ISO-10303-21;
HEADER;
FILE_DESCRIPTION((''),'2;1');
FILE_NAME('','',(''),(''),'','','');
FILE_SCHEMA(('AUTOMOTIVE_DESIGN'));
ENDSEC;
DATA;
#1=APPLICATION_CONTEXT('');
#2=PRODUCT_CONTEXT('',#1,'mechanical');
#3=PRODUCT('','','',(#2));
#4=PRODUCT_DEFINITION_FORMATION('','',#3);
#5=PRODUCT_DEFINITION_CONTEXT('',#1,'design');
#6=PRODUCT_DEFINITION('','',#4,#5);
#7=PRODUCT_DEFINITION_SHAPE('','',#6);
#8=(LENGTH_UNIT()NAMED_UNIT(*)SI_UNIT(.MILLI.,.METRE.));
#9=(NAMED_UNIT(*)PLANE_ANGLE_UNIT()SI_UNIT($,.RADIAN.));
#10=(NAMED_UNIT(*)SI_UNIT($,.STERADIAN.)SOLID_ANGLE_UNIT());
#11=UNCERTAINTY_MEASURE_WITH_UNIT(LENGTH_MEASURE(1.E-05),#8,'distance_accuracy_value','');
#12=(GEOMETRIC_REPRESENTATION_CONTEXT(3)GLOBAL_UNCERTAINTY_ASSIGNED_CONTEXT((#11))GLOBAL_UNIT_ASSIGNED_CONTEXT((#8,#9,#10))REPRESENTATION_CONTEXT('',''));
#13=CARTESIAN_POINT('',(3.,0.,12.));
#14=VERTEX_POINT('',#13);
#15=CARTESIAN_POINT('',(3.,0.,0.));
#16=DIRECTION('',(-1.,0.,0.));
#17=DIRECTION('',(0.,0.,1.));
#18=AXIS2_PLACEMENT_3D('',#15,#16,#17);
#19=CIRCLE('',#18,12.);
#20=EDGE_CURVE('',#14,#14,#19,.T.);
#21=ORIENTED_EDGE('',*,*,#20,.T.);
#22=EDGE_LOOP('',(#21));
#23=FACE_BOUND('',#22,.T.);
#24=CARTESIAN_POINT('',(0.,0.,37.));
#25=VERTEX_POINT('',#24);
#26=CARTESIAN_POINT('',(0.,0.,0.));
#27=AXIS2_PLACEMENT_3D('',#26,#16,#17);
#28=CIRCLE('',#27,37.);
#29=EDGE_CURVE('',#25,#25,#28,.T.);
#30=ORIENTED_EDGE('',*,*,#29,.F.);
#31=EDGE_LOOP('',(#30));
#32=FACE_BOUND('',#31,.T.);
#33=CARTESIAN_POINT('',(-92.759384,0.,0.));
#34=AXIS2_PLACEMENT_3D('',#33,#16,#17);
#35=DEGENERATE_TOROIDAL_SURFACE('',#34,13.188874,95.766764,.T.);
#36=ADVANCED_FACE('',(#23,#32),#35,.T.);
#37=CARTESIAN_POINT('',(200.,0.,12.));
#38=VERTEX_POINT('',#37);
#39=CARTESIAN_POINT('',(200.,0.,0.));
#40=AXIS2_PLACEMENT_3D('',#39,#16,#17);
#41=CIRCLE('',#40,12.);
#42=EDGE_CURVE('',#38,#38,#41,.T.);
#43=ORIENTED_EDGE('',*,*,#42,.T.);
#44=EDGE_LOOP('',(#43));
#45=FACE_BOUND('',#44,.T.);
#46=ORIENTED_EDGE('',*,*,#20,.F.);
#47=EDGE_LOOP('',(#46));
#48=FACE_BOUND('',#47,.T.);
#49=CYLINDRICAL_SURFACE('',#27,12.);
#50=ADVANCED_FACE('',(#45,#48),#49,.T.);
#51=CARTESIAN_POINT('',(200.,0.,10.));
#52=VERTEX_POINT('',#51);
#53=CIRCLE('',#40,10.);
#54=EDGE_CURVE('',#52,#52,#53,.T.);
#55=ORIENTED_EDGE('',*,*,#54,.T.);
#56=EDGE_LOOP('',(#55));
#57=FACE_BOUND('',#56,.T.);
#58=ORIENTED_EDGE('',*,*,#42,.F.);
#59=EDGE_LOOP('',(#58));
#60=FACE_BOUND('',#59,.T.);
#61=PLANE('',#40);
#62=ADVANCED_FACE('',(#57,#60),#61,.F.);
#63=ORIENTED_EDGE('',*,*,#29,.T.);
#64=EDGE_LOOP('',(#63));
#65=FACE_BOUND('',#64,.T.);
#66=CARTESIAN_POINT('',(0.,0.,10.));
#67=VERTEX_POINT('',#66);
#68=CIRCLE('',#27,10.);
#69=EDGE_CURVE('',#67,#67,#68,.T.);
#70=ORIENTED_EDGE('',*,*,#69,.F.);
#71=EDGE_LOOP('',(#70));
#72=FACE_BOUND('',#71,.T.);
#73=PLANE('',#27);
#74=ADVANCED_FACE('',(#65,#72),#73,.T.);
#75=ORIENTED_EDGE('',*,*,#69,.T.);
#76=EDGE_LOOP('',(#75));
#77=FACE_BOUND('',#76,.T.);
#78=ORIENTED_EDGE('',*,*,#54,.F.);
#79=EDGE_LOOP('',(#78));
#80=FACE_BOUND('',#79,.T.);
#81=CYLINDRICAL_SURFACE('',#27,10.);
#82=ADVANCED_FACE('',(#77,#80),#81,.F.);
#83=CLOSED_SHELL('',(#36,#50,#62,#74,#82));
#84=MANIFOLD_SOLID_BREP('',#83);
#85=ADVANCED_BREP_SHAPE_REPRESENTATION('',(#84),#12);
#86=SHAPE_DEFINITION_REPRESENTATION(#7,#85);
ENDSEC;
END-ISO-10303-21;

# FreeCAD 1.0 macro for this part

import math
import FreeCAD as App
import Part
import Sketcher

V = App.Vector

doc = App.newDocument("Part")
params = doc.addObject("Spreadsheet::Sheet", "Params")
for row, (alias, value) in enumerate([
    ("sketch1_width", "197 mm"),
    ("sketch1_width2", "200 mm"),
    ("sketch1_height", "2 mm"),
    ("sketch1_height2", "27 mm"),
    ("revolution_angle", "360 deg"),
], start=1):
    params.set(f"A{row}", alias)
    params.set(f"B{row}", "=" + value)
    params.setAlias(f"B{row}", alias)

body = doc.addObject("PartDesign::Body", "Body")

sketch1 = doc.addObject("Sketcher::SketchObject", "Sketch")
body.addObject(sketch1)
sketch1.AttachmentSupport = (doc.XY_Plane, [""])
sketch1.MapMode = "FlatFace"
sketch1.addGeometry([
    Part.ArcOfCircle(Part.Circle(V(-92.8, -13.2, 0), V(0, 0, 1), 95.8), math.radians(-14.4), math.radians(0.71)),
    Part.LineSegment(V(3, -12, 0), V(200, -12, 0)),
    Part.LineSegment(V(200, -12, 0), V(200, -10, 0)),
    Part.LineSegment(V(200, -10, 0), V(0, -10, 0)),
    Part.LineSegment(V(0, -10, 0), V(0, -37, 0)),
], False)
sketch1.addConstraint([
    Sketcher.Constraint("Coincident", 0, 2, 1, 1),
    Sketcher.Constraint("Coincident", 1, 2, 2, 1),
    Sketcher.Constraint("Coincident", 2, 2, 3, 1),
    Sketcher.Constraint("Coincident", 3, 2, 4, 1),
    Sketcher.Constraint("Coincident", 4, 2, 0, 1),
    Sketcher.Constraint("Horizontal", 1),
    Sketcher.Constraint("Vertical", 2),
    Sketcher.Constraint("Horizontal", 3),
    Sketcher.Constraint("Vertical", 4),
    Sketcher.Constraint("PointOnObject", 3, 2, -2),
    Sketcher.Constraint("DistanceX", 1, 1, 1, 2, 197.0),
    Sketcher.Constraint("DistanceX", 3, 2, 3, 1, 200.0),
    Sketcher.Constraint("DistanceY", 2, 1, 2, 2, 2.0),
    Sketcher.Constraint("DistanceY", 4, 2, 4, 1, 27.0),
    Sketcher.Constraint("DistanceY", 0, 2, -1, 1, 12.0),
    Sketcher.Constraint("Radius", 0, 95.766764),
])
sketch1.setExpression("Constraints[10]", "Params.sketch1_width")
sketch1.setExpression("Constraints[11]", "Params.sketch1_width2")
sketch1.setExpression("Constraints[12]", "Params.sketch1_height")
sketch1.setExpression("Constraints[13]", "Params.sketch1_height2")
revolution = doc.addObject("PartDesign::Revolution", "Revolution")
body.addObject(revolution)
revolution.Profile = sketch1
revolution.ReferenceAxis = (sketch1, ["H_Axis"])
revolution.setExpression("Angle", "Params.revolution_angle")

doc.recompute()
